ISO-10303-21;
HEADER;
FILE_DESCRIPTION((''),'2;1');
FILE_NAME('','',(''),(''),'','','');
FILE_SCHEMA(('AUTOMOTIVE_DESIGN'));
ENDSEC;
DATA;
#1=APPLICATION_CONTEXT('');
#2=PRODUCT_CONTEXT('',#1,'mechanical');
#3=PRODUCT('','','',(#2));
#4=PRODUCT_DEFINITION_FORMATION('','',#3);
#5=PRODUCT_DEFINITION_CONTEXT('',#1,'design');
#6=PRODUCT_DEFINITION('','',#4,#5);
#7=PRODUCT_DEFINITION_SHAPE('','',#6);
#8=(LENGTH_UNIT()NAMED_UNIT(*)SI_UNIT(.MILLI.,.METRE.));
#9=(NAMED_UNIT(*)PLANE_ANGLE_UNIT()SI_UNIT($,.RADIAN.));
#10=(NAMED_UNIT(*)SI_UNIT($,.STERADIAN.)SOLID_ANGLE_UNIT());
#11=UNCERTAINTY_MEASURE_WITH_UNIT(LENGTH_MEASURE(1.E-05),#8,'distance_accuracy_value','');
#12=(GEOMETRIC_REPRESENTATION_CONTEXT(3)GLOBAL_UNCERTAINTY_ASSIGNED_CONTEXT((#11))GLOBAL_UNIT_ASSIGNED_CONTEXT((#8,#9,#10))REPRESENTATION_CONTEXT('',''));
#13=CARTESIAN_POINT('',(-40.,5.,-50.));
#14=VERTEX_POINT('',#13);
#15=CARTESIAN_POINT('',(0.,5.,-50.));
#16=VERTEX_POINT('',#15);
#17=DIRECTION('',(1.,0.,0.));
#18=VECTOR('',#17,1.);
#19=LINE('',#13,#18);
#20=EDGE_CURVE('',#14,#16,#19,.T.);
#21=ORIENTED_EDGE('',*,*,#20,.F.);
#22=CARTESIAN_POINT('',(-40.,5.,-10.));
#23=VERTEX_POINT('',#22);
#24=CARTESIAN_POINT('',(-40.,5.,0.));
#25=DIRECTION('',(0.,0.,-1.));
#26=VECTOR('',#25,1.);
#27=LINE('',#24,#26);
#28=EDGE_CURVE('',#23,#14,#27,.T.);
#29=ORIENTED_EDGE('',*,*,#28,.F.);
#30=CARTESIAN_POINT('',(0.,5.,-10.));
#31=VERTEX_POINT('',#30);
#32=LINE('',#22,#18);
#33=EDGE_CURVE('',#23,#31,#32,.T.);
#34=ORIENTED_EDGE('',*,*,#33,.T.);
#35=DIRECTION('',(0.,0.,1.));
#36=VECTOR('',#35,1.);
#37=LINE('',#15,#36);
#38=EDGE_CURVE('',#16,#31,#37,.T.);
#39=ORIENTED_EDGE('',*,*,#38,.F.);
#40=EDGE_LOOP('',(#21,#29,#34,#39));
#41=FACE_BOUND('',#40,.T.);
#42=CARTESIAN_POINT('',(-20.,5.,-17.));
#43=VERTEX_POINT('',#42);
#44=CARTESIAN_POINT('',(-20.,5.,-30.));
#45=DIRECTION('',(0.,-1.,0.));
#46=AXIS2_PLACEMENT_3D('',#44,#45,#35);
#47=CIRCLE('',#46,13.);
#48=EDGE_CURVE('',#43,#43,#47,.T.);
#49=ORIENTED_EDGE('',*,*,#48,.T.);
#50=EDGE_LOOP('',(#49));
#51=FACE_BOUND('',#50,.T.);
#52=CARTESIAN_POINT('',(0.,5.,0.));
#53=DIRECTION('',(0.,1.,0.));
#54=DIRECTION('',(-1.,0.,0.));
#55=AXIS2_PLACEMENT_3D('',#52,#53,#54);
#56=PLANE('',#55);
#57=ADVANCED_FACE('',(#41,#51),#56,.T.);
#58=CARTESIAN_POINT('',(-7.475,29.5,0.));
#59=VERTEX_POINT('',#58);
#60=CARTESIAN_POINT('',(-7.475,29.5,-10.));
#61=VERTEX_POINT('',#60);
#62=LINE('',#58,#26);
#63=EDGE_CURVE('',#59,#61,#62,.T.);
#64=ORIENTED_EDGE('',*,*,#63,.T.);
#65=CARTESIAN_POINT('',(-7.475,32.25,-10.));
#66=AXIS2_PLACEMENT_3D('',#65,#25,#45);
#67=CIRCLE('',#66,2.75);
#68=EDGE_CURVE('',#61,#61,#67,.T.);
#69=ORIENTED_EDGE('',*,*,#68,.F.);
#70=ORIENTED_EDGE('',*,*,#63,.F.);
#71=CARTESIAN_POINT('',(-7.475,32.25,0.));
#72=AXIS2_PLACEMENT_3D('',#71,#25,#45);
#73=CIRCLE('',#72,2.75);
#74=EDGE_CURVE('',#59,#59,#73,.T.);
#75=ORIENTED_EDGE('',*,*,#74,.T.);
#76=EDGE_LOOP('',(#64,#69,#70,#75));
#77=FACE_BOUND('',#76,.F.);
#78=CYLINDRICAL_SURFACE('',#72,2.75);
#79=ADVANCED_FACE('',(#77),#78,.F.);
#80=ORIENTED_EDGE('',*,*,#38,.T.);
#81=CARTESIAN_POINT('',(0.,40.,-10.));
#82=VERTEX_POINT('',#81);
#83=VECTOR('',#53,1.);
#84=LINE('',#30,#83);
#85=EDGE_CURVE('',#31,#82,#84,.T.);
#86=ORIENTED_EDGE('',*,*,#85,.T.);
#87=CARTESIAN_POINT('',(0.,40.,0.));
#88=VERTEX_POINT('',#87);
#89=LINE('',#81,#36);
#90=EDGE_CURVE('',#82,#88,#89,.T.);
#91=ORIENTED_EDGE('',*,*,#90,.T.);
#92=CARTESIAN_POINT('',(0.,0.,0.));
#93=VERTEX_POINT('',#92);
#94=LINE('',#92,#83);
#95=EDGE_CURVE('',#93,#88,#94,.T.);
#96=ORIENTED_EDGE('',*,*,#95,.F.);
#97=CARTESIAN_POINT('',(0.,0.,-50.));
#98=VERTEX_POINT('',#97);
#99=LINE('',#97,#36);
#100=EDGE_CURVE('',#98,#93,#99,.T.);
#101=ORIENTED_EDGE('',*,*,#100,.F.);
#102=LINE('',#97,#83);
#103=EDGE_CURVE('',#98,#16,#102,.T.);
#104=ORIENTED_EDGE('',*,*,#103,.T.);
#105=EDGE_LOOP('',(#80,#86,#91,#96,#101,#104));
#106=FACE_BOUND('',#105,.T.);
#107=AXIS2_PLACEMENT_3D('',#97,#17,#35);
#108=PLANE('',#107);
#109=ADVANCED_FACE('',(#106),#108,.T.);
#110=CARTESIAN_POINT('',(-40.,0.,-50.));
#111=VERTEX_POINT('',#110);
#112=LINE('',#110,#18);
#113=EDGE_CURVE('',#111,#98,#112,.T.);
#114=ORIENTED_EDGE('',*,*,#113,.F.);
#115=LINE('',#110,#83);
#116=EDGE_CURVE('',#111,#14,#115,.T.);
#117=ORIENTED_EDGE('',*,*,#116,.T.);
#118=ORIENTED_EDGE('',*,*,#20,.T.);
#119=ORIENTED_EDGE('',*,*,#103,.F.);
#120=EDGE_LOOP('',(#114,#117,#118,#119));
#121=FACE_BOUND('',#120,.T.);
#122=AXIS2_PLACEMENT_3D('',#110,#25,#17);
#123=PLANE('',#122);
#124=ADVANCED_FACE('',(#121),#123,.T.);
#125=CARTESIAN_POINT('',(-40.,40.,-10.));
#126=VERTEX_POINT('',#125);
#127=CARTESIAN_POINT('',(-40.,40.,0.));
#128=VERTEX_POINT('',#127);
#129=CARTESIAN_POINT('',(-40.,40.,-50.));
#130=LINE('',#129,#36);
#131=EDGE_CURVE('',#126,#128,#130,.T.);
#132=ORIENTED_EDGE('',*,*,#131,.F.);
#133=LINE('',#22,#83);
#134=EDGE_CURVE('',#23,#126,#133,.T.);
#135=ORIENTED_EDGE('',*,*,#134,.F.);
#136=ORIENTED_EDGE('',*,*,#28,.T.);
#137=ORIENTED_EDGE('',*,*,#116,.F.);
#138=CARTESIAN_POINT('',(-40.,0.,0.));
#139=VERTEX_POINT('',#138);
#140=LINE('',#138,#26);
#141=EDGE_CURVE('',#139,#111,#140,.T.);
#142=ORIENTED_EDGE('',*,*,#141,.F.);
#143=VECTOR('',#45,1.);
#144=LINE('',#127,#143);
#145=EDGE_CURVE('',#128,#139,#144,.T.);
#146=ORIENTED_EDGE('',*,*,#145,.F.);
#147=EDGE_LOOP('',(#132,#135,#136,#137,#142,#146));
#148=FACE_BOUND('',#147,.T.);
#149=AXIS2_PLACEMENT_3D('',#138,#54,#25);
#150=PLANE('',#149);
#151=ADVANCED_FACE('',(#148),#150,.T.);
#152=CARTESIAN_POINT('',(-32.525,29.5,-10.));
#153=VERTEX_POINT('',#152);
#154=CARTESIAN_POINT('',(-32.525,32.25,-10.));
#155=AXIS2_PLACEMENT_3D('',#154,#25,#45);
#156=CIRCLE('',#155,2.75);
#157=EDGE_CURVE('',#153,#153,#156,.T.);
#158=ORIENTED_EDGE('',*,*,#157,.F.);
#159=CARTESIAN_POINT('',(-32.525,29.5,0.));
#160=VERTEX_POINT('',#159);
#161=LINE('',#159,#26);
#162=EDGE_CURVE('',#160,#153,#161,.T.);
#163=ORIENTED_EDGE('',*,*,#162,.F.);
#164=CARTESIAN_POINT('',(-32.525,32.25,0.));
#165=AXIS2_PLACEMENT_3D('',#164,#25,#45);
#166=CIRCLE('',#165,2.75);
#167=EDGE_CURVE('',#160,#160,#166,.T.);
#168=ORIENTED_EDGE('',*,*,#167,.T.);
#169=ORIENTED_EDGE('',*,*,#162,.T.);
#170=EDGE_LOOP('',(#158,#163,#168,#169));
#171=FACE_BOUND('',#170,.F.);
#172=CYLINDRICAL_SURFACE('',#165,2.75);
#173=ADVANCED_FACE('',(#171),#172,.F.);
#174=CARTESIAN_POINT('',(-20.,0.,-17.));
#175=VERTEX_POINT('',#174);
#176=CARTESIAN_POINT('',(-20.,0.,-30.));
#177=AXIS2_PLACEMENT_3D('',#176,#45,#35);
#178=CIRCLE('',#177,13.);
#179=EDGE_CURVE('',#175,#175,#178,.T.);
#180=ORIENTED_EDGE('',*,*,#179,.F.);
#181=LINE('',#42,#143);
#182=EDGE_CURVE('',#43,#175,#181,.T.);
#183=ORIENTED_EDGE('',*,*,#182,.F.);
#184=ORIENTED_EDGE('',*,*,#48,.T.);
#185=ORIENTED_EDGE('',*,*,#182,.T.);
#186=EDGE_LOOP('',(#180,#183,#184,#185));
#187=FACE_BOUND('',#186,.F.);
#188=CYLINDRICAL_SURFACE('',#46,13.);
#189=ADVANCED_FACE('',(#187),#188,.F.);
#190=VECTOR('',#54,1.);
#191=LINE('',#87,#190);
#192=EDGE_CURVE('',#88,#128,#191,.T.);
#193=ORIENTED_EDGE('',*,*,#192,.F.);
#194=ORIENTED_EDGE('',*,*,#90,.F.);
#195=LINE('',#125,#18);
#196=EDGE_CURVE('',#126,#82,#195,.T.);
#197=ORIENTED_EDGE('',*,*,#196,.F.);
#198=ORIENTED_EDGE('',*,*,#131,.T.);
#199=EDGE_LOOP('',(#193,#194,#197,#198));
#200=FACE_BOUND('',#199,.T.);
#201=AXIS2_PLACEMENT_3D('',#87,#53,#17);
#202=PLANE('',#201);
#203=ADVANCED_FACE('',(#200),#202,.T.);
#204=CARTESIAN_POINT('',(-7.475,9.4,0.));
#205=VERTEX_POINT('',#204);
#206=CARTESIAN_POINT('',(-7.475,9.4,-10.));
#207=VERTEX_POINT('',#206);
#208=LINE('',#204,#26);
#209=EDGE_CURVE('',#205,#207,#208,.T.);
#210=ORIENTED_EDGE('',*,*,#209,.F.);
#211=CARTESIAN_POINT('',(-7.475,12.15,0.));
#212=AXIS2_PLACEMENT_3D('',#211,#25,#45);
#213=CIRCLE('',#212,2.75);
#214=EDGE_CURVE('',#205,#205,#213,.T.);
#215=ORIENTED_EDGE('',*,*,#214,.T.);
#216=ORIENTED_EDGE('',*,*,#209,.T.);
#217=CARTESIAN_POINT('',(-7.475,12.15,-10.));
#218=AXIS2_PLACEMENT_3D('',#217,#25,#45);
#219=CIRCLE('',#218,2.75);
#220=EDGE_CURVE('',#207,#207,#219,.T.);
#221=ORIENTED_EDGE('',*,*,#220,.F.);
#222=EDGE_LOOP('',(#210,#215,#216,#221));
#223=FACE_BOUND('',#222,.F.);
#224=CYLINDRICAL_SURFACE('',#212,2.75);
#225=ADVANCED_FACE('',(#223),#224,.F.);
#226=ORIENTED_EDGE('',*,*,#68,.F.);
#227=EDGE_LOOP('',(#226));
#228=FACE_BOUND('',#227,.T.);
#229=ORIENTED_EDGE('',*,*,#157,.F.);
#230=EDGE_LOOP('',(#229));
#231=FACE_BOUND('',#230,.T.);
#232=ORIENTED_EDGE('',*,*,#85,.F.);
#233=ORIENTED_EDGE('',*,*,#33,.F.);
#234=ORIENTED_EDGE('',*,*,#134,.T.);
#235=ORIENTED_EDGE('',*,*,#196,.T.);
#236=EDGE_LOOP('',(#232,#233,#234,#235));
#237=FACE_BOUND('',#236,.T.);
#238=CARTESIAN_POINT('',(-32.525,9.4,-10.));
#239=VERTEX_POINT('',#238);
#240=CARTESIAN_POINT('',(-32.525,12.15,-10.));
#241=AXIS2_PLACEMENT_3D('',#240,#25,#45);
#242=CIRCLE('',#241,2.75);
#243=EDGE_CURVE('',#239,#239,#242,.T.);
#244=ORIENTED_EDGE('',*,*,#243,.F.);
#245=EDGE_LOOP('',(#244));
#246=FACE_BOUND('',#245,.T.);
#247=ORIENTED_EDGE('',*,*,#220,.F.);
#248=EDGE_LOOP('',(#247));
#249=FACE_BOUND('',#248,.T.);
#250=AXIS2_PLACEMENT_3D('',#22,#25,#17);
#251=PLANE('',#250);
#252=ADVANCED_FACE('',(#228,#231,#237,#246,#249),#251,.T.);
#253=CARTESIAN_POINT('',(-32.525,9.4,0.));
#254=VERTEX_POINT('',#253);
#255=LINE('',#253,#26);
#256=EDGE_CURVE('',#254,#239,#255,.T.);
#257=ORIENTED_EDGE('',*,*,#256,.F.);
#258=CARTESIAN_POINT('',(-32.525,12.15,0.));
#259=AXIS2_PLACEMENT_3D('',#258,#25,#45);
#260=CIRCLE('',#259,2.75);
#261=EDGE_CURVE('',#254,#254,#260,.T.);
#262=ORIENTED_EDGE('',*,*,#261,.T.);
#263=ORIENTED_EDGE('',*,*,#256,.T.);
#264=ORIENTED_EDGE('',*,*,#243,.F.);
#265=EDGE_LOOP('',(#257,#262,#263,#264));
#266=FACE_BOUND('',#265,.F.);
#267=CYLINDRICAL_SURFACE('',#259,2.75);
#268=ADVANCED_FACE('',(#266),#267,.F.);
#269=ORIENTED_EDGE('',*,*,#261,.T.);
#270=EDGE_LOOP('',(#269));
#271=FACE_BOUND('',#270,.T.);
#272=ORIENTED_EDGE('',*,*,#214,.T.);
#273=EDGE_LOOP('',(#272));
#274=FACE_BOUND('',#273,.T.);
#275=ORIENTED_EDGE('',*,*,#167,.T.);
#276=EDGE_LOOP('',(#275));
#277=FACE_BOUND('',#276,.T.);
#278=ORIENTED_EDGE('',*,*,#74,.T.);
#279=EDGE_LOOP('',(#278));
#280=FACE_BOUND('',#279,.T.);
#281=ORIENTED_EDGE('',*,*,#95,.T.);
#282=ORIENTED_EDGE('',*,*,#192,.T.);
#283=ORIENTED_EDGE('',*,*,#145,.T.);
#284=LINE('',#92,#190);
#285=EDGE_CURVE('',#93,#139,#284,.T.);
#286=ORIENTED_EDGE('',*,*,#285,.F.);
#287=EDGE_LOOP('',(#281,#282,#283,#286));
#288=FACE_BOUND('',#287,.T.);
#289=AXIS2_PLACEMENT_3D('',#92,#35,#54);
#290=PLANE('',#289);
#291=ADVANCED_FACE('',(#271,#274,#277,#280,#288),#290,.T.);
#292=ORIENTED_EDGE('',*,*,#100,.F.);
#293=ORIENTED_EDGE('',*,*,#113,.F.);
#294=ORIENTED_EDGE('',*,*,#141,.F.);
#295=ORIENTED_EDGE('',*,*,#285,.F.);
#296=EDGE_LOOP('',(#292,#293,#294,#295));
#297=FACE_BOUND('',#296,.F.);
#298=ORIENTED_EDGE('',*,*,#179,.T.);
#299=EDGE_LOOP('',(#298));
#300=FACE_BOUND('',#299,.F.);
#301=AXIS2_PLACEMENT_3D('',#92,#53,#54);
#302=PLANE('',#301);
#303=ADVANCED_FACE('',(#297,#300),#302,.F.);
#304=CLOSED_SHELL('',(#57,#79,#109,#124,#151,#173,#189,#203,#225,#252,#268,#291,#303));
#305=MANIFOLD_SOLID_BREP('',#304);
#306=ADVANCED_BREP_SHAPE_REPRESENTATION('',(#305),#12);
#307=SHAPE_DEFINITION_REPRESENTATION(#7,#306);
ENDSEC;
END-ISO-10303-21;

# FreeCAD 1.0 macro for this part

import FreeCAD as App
import Part
import Sketcher
from FreeCAD import Vector

doc = App.newDocument("Part")
body = doc.addObject("PartDesign::Body", "Body")

# Sketch on XZ plane
sketch1 = body.newObject("Sketcher::SketchObject", "Sketch")
sketch1.AttachmentSupport = (doc.getObject("XZ_Plane"), [""])
sketch1.MapMode = "FlatFace"
sketch1.addGeometry([
    Part.LineSegment(Vector(-40, 0, 0), Vector(0, 0, 0)),
    Part.LineSegment(Vector(0, 0, 0), Vector(0, -50, 0)),
    Part.LineSegment(Vector(0, -50, 0), Vector(-40, -50, 0)),
    Part.LineSegment(Vector(-40, -50, 0), Vector(-40, 0, 0)),
], False)
sketch1.addConstraint([
    Sketcher.Constraint("Coincident", 0, 2, 1, 1),
    Sketcher.Constraint("Coincident", 1, 2, 2, 1),
    Sketcher.Constraint("Coincident", 2, 2, 3, 1),
    Sketcher.Constraint("Coincident", 3, 2, 0, 1),
    Sketcher.Constraint("Horizontal", 0),
    Sketcher.Constraint("Vertical", 1),
    Sketcher.Constraint("Horizontal", 2),
    Sketcher.Constraint("Vertical", 3),
    Sketcher.Constraint("Coincident", 0, 2, -1, 1),
    Sketcher.Constraint("DistanceX", 0, 1, 0, 2, 40.0),
    Sketcher.Constraint("DistanceY", 1, 2, 1, 1, 50.0),
])
pad1 = body.newObject("PartDesign::Pad", "Pad")
pad1.Profile = sketch1
pad1.Length = 5
pad1.Reversed = True

# Sketch on XZ plane
sketch2 = body.newObject("Sketcher::SketchObject", "Sketch001")
sketch2.AttachmentSupport = (doc.getObject("XZ_Plane"), [""])
sketch2.MapMode = "FlatFace"
sketch2.AttachmentOffset = App.Placement(Vector(0, 0, -5), App.Rotation())
sketch2.addGeometry([
    Part.LineSegment(Vector(0, -10, 0), Vector(-40, -10, 0)),
    Part.LineSegment(Vector(-40, -10, 0), Vector(-40, 0, 0)),
    Part.LineSegment(Vector(-40, 0, 0), Vector(0, 0, 0)),
    Part.LineSegment(Vector(0, 0, 0), Vector(0, -10, 0)),
], False)
sketch2.addConstraint([
    Sketcher.Constraint("Coincident", 0, 2, 1, 1),
    Sketcher.Constraint("Coincident", 1, 2, 2, 1),
    Sketcher.Constraint("Coincident", 2, 2, 3, 1),
    Sketcher.Constraint("Coincident", 3, 2, 0, 1),
    Sketcher.Constraint("Horizontal", 0),
    Sketcher.Constraint("Vertical", 1),
    Sketcher.Constraint("Horizontal", 2),
    Sketcher.Constraint("Vertical", 3),
    Sketcher.Constraint("Coincident", 2, 2, -1, 1),
    Sketcher.Constraint("DistanceY", 1, 1, 1, 2, 10.0),
    Sketcher.Constraint("DistanceX", 0, 2, 0, 1, 40.0),
])
pad2 = body.newObject("PartDesign::Pad", "Pad001")
pad2.Profile = sketch2
pad2.Length = 35
pad2.Reversed = True

# Sketch on XZ plane
sketch3 = body.newObject("Sketcher::SketchObject", "Sketch002")
sketch3.AttachmentSupport = (doc.getObject("XZ_Plane"), [""])
sketch3.MapMode = "FlatFace"
sketch3.AttachmentOffset = App.Placement(Vector(0, 0, -5), App.Rotation())
sketch3.addGeometry(Part.Circle(Vector(-20, -30, 0), Vector(0, 0, 1), 13), False)
sketch3.addConstraint([
    Sketcher.Constraint("Diameter", 0, 26.0),
    Sketcher.Constraint("DistanceX", 0, 3, -1, 1, 20.0),
    Sketcher.Constraint("DistanceY", 0, 3, -1, 1, 30.0),
])
doc.recompute()
hole = body.newObject("PartDesign::Hole", "Hole")
hole.Profile = sketch3
hole.ThreadType = "None"
hole.Diameter = 26
hole.DepthType = "ThroughAll"
hole.Reversed = True

# Sketch on XY plane
sketch4 = body.newObject("Sketcher::SketchObject", "Sketch003")
sketch4.AttachmentSupport = (doc.getObject("XY_Plane"), [""])
sketch4.MapMode = "FlatFace"
sketch4.addGeometry([
    Part.Circle(Vector(-32.5, 12.2, 0), Vector(0, 0, 1), 2.8),
    Part.Circle(Vector(-32.5, 32.2, 0), Vector(0, 0, 1), 2.8),
    Part.Circle(Vector(-7.5, 12.2, 0), Vector(0, 0, 1), 2.8),
    Part.Circle(Vector(-7.5, 32.2, 0), Vector(0, 0, 1), 2.8),
], False)
sketch4.addConstraint([
    Sketcher.Constraint("Equal", 0, 1),
    Sketcher.Constraint("Equal", 1, 2),
    Sketcher.Constraint("Equal", 2, 3),
    Sketcher.Constraint("Horizontal", 0, 3, 2, 3),
    Sketcher.Constraint("Horizontal", 1, 3, 3, 3),
    Sketcher.Constraint("Vertical", 0, 3, 1, 3),
    Sketcher.Constraint("Vertical", 2, 3, 3, 3),
    Sketcher.Constraint("Diameter", 0, 5.5),
    Sketcher.Constraint("DistanceY", 0, 3, 1, 3, 20.1),
    Sketcher.Constraint("DistanceY", -1, 1, 0, 3, 12.15),
    Sketcher.Constraint("DistanceX", 0, 3, 2, 3, 25.05),
    Sketcher.Constraint("DistanceX", 0, 3, -1, 1, 32.525),
])
doc.recompute()
hole2 = body.newObject("PartDesign::Hole", "Hole001")
hole2.Profile = sketch4
hole2.ThreadType = "None"
hole2.Diameter = 5.5
hole2.DepthType = "ThroughAll"

doc.recompute()
